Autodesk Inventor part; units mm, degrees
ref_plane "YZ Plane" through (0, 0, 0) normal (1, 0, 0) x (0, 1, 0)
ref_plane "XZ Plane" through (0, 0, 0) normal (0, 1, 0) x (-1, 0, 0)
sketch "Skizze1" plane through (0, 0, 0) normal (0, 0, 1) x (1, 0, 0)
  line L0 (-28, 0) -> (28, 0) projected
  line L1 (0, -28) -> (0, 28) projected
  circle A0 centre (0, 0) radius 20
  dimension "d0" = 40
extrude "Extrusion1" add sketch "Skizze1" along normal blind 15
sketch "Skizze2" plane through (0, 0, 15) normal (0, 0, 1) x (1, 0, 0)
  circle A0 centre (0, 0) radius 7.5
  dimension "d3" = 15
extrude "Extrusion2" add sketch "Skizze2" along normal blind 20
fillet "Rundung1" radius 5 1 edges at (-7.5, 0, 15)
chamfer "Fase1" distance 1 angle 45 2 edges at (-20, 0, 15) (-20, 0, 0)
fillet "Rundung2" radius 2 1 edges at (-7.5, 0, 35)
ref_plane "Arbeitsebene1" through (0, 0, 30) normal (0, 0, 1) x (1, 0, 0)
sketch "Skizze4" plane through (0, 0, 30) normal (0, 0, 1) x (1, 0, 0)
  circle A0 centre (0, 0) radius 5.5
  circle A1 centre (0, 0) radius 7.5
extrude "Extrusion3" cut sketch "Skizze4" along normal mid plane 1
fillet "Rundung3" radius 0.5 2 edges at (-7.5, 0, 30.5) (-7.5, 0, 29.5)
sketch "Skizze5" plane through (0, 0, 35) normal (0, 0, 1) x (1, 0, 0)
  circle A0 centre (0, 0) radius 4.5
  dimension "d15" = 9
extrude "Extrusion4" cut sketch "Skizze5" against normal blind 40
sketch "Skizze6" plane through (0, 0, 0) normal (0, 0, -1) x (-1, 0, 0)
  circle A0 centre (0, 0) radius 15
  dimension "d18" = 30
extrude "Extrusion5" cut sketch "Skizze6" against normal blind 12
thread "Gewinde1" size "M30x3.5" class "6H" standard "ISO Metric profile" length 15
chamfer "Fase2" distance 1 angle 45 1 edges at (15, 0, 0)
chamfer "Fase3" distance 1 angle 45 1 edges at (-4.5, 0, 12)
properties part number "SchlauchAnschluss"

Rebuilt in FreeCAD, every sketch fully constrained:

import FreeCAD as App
import Part
import Sketcher

V = App.Vector


def edges_at(feature, points):
    """Names of the edges that pass closest to the given points."""
    edges = feature.Shape.Edges
    near = lambda p: min(range(len(edges)), key=lambda i: edges[i].distToShape(Part.Vertex(*p))[0])
    return sorted({f"Edge{near(p) + 1}" for p in points})

doc = App.newDocument("Part")
body = doc.addObject("PartDesign::Body", "Body")

sketch1 = body.newObject("Sketcher::SketchObject", "Sketch")
sketch1.AttachmentSupport = (doc.getObject("XY_Plane"), [""])
sketch1.MapMode = "FlatFace"
sketch1.addGeometry(Part.Circle(V(0, 0, 0), V(0, 0, 1), 20), False)
sketch1.addConstraint([
    Sketcher.Constraint("Coincident", 0, 3, -1, 1),
    Sketcher.Constraint("Diameter", 0, 40.0),
])
pad1 = body.newObject("PartDesign::Pad", "Pad")
pad1.Profile = sketch1
pad1.Length = 15

sketch2 = body.newObject("Sketcher::SketchObject", "Sketch001")
sketch2.AttachmentSupport = (doc.getObject("XY_Plane"), [""])
sketch2.MapMode = "FlatFace"
sketch2.AttachmentOffset = App.Placement(V(0, 0, 15), App.Rotation())
sketch2.addGeometry(Part.Circle(V(0, 0, 0), V(0, 0, 1), 8), False)
sketch2.addConstraint([
    Sketcher.Constraint("Coincident", 0, 3, -1, 1),
    Sketcher.Constraint("Diameter", 0, 15.0),
])
pad2 = body.newObject("PartDesign::Pad", "Pad001")
pad2.Profile = sketch2
pad2.Length = 20
doc.recompute()

fillet = body.newObject("PartDesign::Fillet", "Fillet")
fillet.Base = (pad2, edges_at(pad2, [(-7.5, 0, 15)]))
fillet.Radius = 5
doc.recompute()

chamfer = body.newObject("PartDesign::Chamfer", "Chamfer")
chamfer.Base = (fillet, edges_at(fillet, [(-20, 0, 15), (-20, 0, 0)]))
chamfer.Size = 1
doc.recompute()

fillet2 = body.newObject("PartDesign::Fillet", "Fillet001")
fillet2.Base = (chamfer, edges_at(chamfer, [(-7.5, 0, 35)]))
fillet2.Radius = 2

sketch3 = body.newObject("Sketcher::SketchObject", "Sketch002")
sketch3.AttachmentSupport = (doc.getObject("XY_Plane"), [""])
sketch3.MapMode = "FlatFace"
sketch3.AttachmentOffset = App.Placement(V(0, 0, 30), App.Rotation())
sketch3.addGeometry([
    Part.Circle(V(0, 0, 0), V(0, 0, 1), 8),
    Part.Circle(V(0, 0, 0), V(0, 0, 1), 6),
], False)
sketch3.addConstraint([
    Sketcher.Constraint("Coincident", 0, 3, -1, 1),
    Sketcher.Constraint("Coincident", 1, 3, -1, 1),
    Sketcher.Constraint("Diameter", 0, 15.0),
    Sketcher.Constraint("Diameter", 1, 11.0),
])
pocket1 = body.newObject("PartDesign::Pocket", "Pocket")
pocket1.Profile = sketch3
pocket1.Length = 1
pocket1.Midplane = True
doc.recompute()

fillet3 = body.newObject("PartDesign::Fillet", "Fillet002")
fillet3.Base = (pocket1, edges_at(pocket1, [(-7.5, 0, 30.5), (-7.5, 0, 29.5)]))
fillet3.Radius = 0.5

sketch4 = body.newObject("Sketcher::SketchObject", "Sketch003")
sketch4.AttachmentSupport = (doc.getObject("XY_Plane"), [""])
sketch4.MapMode = "FlatFace"
sketch4.AttachmentOffset = App.Placement(V(0, 0, 35), App.Rotation())
sketch4.addGeometry(Part.Circle(V(0, 0, 0), V(0, 0, 1), 4.5), False)
sketch4.addConstraint([
    Sketcher.Constraint("Coincident", 0, 3, -1, 1),
    Sketcher.Constraint("Diameter", 0, 9.0),
])
pocket2 = body.newObject("PartDesign::Pocket", "Pocket001")
pocket2.Profile = sketch4
pocket2.Length = 40

sketch5 = body.newObject("Sketcher::SketchObject", "Sketch004")
sketch5.AttachmentSupport = (doc.getObject("XY_Plane"), [""])
sketch5.MapMode = "FlatFace"
sketch5.addGeometry(Part.Circle(V(0, 0, 0), V(0, 0, 1), 15), False)
sketch5.addConstraint([
    Sketcher.Constraint("Coincident", 0, 3, -1, 1),
    Sketcher.Constraint("Diameter", 0, 30.0),
])
pocket3 = body.newObject("PartDesign::Pocket", "Pocket002")
pocket3.Profile = sketch5
pocket3.Length = 12
pocket3.Reversed = True
doc.recompute()

chamfer2 = body.newObject("PartDesign::Chamfer", "Chamfer001")
chamfer2.Base = (pocket3, edges_at(pocket3, [(15, 0, 0)]))
chamfer2.Size = 1
doc.recompute()

chamfer3 = body.newObject("PartDesign::Chamfer", "Chamfer002")
chamfer3.Base = (chamfer2, edges_at(chamfer2, [(-4.5, 0, 12)]))
chamfer3.Size = 1

doc.recompute()
